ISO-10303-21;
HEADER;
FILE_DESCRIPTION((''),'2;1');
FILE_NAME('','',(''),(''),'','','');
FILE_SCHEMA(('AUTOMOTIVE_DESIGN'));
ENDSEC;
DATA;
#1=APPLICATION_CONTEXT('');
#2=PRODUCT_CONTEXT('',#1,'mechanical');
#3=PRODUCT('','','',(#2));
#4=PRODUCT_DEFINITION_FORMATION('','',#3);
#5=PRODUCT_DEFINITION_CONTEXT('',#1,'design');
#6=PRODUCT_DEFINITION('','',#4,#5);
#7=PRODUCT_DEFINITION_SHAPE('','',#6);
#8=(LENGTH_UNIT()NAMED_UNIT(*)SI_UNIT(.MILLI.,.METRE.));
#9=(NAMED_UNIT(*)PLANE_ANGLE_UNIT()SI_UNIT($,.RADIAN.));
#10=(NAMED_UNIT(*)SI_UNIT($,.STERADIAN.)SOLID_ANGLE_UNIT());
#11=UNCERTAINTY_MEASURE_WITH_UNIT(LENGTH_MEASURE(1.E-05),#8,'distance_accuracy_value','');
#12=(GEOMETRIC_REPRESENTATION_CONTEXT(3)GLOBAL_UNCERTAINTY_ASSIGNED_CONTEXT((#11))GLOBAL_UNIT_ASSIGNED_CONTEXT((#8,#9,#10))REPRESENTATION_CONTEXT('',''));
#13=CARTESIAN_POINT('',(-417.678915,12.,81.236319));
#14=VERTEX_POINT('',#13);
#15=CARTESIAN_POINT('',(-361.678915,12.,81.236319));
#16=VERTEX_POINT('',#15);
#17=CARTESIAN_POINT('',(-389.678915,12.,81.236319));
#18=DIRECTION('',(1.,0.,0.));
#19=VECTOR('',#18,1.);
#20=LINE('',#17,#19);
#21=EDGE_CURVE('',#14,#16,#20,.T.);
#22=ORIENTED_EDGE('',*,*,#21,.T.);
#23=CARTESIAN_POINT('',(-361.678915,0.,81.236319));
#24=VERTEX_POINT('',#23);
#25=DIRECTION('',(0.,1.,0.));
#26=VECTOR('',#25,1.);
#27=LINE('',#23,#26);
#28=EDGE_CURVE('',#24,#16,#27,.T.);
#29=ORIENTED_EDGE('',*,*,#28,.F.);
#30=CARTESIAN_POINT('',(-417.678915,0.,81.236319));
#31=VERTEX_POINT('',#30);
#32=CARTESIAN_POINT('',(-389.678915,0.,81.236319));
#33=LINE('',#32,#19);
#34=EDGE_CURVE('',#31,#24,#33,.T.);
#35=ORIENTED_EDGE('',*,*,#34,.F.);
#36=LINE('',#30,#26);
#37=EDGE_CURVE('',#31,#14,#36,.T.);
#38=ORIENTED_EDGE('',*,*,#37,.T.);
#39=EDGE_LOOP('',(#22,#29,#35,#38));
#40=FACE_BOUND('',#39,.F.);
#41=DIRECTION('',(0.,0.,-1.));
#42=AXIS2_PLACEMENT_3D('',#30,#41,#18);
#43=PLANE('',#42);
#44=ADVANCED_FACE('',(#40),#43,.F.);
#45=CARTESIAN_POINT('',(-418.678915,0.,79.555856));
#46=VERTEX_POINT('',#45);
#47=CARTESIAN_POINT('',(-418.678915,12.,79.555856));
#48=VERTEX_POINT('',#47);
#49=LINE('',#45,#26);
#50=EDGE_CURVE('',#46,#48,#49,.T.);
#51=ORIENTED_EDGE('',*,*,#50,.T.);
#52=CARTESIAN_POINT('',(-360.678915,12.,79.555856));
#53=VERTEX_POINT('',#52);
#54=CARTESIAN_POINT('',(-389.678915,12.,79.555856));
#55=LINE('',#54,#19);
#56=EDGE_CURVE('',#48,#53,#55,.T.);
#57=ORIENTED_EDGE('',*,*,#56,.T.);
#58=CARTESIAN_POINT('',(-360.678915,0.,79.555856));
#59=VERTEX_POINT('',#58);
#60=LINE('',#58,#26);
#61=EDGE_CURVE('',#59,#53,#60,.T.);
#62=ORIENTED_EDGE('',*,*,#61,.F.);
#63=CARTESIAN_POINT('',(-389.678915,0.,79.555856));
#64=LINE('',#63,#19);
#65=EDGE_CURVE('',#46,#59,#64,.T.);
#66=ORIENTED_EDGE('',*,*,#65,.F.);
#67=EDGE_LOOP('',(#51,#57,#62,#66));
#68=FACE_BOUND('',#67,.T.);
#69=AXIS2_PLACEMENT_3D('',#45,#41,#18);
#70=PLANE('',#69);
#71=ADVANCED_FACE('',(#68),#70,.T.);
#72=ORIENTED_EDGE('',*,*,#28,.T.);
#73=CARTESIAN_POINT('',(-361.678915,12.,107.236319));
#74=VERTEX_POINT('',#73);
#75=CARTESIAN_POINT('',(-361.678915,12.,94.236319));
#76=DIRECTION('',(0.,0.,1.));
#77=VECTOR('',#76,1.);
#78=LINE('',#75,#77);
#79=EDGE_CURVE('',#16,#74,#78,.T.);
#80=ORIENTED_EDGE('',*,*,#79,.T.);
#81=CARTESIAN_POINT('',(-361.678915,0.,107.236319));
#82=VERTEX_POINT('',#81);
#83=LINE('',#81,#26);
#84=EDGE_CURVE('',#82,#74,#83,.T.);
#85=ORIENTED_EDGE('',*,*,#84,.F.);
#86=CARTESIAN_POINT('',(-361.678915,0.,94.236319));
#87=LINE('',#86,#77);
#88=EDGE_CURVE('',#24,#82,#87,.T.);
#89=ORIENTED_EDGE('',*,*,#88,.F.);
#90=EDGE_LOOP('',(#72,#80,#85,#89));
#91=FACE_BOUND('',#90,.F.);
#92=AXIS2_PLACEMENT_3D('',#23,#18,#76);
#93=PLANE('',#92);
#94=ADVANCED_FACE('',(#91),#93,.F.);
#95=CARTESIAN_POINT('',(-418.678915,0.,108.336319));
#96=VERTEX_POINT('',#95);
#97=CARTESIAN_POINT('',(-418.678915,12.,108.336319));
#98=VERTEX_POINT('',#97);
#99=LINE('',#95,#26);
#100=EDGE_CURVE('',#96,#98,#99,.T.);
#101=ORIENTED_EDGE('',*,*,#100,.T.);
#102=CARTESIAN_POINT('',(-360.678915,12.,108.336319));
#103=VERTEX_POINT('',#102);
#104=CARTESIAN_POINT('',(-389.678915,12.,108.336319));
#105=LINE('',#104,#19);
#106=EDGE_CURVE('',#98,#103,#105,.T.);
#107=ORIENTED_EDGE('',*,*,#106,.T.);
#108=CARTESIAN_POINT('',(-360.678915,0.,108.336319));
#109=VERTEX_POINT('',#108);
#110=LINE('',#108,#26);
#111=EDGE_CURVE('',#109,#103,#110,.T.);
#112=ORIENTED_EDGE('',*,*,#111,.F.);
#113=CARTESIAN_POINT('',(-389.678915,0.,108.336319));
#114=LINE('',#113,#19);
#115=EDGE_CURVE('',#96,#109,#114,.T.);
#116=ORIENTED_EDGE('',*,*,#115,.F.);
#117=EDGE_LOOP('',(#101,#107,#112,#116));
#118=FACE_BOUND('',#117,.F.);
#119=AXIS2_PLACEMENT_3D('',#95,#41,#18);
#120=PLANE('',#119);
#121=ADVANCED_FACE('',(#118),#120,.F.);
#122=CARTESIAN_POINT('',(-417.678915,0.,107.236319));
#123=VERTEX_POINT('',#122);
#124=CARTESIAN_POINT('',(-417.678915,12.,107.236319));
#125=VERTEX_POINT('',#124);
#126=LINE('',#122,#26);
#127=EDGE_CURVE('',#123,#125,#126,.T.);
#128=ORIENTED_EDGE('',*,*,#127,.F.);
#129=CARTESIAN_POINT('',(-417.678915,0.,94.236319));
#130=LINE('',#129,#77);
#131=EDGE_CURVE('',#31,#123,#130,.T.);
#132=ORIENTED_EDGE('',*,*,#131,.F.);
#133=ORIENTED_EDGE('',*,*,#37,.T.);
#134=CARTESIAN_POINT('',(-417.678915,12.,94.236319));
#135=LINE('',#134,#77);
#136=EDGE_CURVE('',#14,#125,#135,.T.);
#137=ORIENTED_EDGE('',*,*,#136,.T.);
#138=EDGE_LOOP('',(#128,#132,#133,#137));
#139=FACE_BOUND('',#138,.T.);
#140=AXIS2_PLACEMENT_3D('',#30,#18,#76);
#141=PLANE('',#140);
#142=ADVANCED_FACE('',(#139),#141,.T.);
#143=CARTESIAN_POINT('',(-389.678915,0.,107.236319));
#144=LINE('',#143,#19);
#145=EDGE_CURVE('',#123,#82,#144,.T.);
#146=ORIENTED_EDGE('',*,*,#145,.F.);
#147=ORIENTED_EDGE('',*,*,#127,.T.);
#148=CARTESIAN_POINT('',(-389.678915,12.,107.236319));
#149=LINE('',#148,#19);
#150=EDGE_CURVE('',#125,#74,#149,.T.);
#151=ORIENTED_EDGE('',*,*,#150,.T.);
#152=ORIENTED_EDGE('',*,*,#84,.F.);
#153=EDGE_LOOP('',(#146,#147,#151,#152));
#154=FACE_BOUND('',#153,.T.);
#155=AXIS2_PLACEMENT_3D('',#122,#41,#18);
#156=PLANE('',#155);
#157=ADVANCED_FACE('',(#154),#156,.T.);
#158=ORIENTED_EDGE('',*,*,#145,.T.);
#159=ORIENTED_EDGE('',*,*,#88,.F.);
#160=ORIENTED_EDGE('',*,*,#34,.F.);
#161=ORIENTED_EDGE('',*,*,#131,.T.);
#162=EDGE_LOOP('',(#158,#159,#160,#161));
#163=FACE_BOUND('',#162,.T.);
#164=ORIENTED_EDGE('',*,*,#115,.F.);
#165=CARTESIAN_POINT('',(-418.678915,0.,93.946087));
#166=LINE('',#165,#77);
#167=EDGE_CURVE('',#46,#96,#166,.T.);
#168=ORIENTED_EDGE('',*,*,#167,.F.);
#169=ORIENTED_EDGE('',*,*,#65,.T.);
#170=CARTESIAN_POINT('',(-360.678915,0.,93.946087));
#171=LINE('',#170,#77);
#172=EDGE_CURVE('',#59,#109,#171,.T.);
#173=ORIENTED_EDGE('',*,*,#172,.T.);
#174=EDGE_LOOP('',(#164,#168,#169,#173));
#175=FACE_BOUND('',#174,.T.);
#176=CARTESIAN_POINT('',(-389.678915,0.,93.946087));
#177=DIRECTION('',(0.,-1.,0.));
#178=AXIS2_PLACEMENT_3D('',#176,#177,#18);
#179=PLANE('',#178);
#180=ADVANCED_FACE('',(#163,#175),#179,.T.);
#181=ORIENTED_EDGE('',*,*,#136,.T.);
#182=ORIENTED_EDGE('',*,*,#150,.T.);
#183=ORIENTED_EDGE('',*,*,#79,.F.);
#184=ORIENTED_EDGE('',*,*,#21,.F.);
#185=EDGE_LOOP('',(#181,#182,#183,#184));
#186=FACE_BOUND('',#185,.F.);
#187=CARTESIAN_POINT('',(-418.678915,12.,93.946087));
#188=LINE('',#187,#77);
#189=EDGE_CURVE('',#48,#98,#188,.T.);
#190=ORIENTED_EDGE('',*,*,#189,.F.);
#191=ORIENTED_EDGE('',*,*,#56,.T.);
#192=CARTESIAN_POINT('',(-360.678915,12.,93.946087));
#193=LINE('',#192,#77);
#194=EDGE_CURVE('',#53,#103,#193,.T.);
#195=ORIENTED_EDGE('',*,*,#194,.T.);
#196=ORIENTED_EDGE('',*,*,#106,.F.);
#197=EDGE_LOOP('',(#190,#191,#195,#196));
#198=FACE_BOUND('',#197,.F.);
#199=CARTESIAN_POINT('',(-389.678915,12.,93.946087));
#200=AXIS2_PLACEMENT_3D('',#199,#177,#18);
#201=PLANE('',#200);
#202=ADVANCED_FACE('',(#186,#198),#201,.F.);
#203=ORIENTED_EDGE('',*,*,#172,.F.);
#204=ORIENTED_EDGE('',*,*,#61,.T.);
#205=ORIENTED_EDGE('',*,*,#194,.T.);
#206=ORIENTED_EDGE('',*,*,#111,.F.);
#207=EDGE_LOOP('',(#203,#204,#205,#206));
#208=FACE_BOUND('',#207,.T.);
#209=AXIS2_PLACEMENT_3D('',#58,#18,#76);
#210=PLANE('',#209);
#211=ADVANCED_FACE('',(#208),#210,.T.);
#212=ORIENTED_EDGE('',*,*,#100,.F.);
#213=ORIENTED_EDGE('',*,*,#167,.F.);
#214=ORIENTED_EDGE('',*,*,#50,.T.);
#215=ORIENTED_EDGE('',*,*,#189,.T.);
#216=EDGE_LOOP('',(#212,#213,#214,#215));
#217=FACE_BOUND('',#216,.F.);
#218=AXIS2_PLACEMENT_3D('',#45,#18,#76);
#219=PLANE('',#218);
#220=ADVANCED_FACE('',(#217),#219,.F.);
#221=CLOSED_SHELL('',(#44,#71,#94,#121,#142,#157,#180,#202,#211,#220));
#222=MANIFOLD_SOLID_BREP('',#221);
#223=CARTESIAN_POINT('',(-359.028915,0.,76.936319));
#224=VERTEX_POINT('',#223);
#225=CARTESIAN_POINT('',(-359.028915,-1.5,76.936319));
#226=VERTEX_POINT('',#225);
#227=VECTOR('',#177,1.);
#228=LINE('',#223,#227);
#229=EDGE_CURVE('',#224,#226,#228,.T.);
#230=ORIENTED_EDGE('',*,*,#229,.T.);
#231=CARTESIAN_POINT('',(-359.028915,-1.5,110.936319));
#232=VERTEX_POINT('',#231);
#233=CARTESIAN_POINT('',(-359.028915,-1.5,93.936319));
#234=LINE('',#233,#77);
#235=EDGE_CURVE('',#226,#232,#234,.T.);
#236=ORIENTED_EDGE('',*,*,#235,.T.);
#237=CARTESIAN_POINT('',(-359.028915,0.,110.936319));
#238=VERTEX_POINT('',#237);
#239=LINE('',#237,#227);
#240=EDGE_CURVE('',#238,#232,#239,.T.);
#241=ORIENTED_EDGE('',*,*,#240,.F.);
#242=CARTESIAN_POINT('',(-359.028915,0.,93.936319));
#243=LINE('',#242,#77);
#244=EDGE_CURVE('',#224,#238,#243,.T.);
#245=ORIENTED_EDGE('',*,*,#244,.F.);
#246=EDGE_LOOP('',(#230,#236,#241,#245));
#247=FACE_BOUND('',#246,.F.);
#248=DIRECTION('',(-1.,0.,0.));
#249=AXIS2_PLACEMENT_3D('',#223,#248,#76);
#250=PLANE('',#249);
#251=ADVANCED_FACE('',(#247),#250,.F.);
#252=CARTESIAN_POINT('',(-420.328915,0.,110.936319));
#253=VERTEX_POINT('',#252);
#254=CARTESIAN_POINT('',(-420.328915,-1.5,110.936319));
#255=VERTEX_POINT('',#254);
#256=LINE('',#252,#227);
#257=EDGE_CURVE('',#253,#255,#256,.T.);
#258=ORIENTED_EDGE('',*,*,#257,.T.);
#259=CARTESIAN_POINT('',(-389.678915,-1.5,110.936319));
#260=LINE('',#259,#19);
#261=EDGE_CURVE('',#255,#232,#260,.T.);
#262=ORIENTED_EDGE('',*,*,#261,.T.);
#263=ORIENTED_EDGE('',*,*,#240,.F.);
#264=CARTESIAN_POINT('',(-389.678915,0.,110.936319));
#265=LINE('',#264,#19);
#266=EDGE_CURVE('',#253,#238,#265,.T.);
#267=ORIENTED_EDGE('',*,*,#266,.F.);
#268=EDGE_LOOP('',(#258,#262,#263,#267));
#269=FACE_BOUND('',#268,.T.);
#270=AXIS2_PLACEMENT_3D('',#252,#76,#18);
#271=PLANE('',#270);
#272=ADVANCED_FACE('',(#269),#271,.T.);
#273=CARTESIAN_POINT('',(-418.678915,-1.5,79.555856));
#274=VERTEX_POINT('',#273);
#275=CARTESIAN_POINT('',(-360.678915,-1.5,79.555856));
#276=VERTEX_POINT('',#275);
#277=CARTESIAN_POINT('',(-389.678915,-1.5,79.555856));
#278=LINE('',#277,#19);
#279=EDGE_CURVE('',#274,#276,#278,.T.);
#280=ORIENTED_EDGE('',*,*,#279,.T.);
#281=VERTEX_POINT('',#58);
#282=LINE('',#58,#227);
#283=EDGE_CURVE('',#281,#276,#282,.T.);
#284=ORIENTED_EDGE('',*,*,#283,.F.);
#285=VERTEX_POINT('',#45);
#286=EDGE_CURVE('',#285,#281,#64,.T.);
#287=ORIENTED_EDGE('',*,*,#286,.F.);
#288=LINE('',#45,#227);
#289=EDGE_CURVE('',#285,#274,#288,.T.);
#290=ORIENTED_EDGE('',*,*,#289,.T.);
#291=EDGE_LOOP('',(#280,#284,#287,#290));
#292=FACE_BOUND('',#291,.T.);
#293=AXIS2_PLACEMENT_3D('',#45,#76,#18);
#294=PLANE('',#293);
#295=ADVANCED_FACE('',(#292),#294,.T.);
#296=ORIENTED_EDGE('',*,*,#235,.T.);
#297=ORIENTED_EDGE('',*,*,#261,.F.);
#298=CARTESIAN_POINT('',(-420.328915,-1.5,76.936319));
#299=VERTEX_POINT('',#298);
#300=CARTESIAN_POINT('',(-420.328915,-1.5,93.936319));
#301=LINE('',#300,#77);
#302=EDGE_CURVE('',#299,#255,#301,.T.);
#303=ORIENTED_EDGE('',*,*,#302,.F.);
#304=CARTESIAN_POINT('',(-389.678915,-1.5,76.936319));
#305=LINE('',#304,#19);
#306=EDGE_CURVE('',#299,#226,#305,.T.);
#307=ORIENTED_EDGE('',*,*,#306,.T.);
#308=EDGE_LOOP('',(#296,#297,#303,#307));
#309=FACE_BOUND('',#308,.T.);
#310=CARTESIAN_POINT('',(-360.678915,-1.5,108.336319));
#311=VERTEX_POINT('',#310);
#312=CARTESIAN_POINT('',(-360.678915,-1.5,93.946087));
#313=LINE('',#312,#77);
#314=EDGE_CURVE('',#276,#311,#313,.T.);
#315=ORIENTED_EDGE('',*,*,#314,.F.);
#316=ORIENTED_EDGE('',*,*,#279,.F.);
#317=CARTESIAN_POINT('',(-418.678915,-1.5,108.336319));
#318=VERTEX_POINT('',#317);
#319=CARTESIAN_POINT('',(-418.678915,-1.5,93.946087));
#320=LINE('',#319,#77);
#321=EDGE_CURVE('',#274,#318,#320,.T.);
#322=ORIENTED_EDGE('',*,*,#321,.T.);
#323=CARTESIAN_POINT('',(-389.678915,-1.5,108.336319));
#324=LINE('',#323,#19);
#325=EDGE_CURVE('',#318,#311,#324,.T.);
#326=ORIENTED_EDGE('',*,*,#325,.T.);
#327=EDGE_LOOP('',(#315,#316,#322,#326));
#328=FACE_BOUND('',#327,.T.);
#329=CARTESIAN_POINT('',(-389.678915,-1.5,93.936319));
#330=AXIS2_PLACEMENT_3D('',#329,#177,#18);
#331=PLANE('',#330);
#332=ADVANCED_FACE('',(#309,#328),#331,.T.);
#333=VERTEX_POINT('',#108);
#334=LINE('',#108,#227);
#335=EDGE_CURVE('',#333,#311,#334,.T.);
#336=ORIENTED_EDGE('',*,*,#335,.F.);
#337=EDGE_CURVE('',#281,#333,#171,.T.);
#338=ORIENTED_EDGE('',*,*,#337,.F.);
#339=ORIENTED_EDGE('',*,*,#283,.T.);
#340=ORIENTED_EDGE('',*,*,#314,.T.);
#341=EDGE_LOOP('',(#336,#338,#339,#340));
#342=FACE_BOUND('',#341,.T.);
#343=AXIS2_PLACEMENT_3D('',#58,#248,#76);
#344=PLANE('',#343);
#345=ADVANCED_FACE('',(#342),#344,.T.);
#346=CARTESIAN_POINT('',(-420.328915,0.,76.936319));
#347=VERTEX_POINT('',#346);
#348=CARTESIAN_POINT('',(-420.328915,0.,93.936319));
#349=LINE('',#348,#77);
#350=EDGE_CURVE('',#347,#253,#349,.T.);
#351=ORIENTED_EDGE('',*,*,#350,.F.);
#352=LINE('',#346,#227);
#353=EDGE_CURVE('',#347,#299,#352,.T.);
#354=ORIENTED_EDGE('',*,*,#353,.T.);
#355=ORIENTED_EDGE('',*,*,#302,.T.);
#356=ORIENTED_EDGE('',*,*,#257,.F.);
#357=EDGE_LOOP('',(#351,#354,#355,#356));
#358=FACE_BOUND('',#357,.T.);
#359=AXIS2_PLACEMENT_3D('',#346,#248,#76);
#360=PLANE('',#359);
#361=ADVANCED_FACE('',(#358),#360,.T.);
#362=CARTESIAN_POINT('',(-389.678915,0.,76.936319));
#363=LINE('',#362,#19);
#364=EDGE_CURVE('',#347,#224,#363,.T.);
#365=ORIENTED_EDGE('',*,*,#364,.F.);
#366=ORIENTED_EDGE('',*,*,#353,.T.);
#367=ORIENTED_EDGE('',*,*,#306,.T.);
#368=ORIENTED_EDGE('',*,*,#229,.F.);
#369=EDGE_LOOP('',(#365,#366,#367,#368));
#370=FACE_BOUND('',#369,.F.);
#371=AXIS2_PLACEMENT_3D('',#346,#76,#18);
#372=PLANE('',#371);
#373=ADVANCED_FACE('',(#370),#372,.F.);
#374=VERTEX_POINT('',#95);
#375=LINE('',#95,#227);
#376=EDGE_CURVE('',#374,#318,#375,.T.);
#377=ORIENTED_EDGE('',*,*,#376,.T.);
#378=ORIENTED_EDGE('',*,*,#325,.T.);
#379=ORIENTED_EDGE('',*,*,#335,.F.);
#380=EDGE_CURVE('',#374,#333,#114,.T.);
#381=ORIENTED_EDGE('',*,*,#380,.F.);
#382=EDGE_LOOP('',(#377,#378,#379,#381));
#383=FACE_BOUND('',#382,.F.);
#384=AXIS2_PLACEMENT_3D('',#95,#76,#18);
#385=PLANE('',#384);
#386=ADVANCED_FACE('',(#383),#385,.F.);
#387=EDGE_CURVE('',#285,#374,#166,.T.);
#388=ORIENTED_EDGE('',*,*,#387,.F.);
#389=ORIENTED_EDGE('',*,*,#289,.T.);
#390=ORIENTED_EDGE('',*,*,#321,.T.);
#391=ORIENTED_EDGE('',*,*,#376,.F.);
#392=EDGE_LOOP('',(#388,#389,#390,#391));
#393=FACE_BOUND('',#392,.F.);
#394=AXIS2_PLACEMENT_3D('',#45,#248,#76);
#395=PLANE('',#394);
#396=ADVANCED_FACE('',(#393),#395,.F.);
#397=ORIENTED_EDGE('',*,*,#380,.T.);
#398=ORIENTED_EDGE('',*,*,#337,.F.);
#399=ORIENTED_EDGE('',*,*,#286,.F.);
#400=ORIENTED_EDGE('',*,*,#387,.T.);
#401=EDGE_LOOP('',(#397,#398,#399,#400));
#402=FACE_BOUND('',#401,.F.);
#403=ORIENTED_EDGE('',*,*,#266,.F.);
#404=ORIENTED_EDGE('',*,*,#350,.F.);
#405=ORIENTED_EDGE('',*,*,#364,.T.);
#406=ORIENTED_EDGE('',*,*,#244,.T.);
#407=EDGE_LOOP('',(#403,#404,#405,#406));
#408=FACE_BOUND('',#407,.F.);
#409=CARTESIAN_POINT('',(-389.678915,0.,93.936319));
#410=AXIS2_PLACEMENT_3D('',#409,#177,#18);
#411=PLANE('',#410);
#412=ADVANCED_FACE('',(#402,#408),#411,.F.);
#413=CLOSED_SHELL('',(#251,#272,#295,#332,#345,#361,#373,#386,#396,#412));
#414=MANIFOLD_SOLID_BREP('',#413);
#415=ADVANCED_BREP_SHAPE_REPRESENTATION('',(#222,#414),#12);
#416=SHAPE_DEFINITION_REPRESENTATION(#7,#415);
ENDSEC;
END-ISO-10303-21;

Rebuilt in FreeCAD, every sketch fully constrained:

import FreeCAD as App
import Part
import Sketcher

V = App.Vector
Q = App.Units.Quantity


def add_polygon(sketch, points):
    """Adds a closed chain of lines whose ends are joined by coincident constraints."""
    first, n = sketch.GeometryCount, len(points)
    for a, b in zip(points, points[1:] + points[:1]):
        sketch.addGeometry(Part.LineSegment(App.Vector(*a, 0), App.Vector(*b, 0)), False)
    for i in range(n):
        sketch.addConstraint(Sketcher.Constraint("Coincident", first + i, 2, first + (i + 1) % n, 1))

doc = App.newDocument("Part")
params = doc.addObject("Spreadsheet::Sheet", "Params")
for row, (alias, value) in enumerate([
    ("sketch1_width", "58 mm"),
    ("sketch1_width2", "56 mm"),
    ("sketch1_height", "26 mm"),
    ("pad1_length", "12 mm"),
    ("sketch2_width", "58 mm"),
    ("sketch2_height", "34 mm"),
    ("sketch2_width2", "61.3 mm"),
    ("pad2_length", "1.5 mm"),
], start=1):
    params.set(f"A{row}", alias)
    params.set(f"B{row}", "=" + value)
    params.setAlias(f"B{row}", alias)

body = doc.addObject("PartDesign::Body", "Body")

# Sketch on XZ plane
sketch1 = doc.addObject("Sketcher::SketchObject", "Sketch")
body.addObject(sketch1)
sketch1.AttachmentSupport = (doc.XZ_Plane, [""])
sketch1.MapMode = "FlatFace"
add_polygon(sketch1, [(-419, 108), (-419, 80), (-361, 80), (-361, 108)])  # lines 0-3
add_polygon(sketch1, [(-362, 81), (-418, 81), (-418, 107), (-362, 107)])  # lines 4-7
sketch1.addConstraint([
    Sketcher.Constraint("Vertical", 0),
    Sketcher.Constraint("Horizontal", 1),
    Sketcher.Constraint("Vertical", 2),
    Sketcher.Constraint("Horizontal", 3),
    Sketcher.Constraint("Horizontal", 4),
    Sketcher.Constraint("Vertical", 5),
    Sketcher.Constraint("Horizontal", 6),
    Sketcher.Constraint("Vertical", 7),
    Sketcher.Constraint("DistanceX", 1, 1, 1, 2, Q("58 mm")),
    Sketcher.Constraint("DistanceX", 4, 2, 4, 1, Q("56 mm")),
    Sketcher.Constraint("DistanceY", 5, 1, 5, 2, Q("26 mm")),
    Sketcher.Constraint("DistanceX", 0, 2, 4, 2, Q("1 mm")),
    Sketcher.Constraint("DistanceY", 4, 2, 3, 2, Q("27.1 mm")),
    Sketcher.Constraint("DistanceY", 0, 2, 0, 1, Q("28.780463 mm")),
    Sketcher.Constraint("DistanceY", -1, 1, 2, 2, Q("108.336319 mm")),
    Sketcher.Constraint("DistanceX", 0, 2, -1, 1, Q("418.678915 mm")),
])
sketch1.setExpression("Constraints[16]", "Params.sketch1_width")
sketch1.setExpression("Constraints[17]", "Params.sketch1_width2")
sketch1.setExpression("Constraints[18]", "Params.sketch1_height")
pad1 = doc.addObject("PartDesign::Pad", "Pad")
body.addObject(pad1)
pad1.Profile = sketch1
pad1.setExpression("Length", "Params.pad1_length")
pad1.Reversed = True
body2 = doc.addObject("PartDesign::Body", "Body001")

# Sketch on XZ plane
sketch2 = doc.addObject("Sketcher::SketchObject", "Sketch001")
body2.addObject(sketch2)
sketch2.AttachmentSupport = (doc.getObject("XZ_Plane001"), [""])
sketch2.MapMode = "FlatFace"
add_polygon(sketch2, [(-420, 111), (-420, 77), (-359, 77), (-359, 111)])  # lines 0-3
add_polygon(sketch2, [(-361, 80), (-419, 80), (-419, 108), (-361, 108)])  # lines 4-7
sketch2.addConstraint([
    Sketcher.Constraint("Vertical", 0),
    Sketcher.Constraint("Horizontal", 1),
    Sketcher.Constraint("Vertical", 2),
    Sketcher.Constraint("Horizontal", 3),
    Sketcher.Constraint("Horizontal", 4),
    Sketcher.Constraint("Vertical", 5),
    Sketcher.Constraint("Horizontal", 6),
    Sketcher.Constraint("Vertical", 7),
    Sketcher.Constraint("DistanceX", 4, 2, 4, 1, Q("58 mm")),
    Sketcher.Constraint("DistanceY", 0, 2, 0, 1, Q("34 mm")),
    Sketcher.Constraint("DistanceX", 1, 1, 1, 2, Q("61.3 mm")),
    Sketcher.Constraint("DistanceY", 5, 2, 3, 2, Q("2.6 mm")),
    Sketcher.Constraint("DistanceX", 0, 2, 4, 2, Q("1.65 mm")),
    Sketcher.Constraint("DistanceY", 5, 1, 5, 2, Q("28.780463 mm")),
    Sketcher.Constraint("DistanceY", -1, 1, 0, 2, Q("76.936319 mm")),
    Sketcher.Constraint("DistanceX", 0, 2, -1, 1, Q("420.328915 mm")),
])
sketch2.setExpression("Constraints[16]", "Params.sketch2_width")
sketch2.setExpression("Constraints[17]", "Params.sketch2_height")
sketch2.setExpression("Constraints[18]", "Params.sketch2_width2")
pad2 = doc.addObject("PartDesign::Pad", "Pad001")
body2.addObject(pad2)
pad2.Profile = sketch2
pad2.setExpression("Length", "Params.pad2_length")

doc.recompute()
